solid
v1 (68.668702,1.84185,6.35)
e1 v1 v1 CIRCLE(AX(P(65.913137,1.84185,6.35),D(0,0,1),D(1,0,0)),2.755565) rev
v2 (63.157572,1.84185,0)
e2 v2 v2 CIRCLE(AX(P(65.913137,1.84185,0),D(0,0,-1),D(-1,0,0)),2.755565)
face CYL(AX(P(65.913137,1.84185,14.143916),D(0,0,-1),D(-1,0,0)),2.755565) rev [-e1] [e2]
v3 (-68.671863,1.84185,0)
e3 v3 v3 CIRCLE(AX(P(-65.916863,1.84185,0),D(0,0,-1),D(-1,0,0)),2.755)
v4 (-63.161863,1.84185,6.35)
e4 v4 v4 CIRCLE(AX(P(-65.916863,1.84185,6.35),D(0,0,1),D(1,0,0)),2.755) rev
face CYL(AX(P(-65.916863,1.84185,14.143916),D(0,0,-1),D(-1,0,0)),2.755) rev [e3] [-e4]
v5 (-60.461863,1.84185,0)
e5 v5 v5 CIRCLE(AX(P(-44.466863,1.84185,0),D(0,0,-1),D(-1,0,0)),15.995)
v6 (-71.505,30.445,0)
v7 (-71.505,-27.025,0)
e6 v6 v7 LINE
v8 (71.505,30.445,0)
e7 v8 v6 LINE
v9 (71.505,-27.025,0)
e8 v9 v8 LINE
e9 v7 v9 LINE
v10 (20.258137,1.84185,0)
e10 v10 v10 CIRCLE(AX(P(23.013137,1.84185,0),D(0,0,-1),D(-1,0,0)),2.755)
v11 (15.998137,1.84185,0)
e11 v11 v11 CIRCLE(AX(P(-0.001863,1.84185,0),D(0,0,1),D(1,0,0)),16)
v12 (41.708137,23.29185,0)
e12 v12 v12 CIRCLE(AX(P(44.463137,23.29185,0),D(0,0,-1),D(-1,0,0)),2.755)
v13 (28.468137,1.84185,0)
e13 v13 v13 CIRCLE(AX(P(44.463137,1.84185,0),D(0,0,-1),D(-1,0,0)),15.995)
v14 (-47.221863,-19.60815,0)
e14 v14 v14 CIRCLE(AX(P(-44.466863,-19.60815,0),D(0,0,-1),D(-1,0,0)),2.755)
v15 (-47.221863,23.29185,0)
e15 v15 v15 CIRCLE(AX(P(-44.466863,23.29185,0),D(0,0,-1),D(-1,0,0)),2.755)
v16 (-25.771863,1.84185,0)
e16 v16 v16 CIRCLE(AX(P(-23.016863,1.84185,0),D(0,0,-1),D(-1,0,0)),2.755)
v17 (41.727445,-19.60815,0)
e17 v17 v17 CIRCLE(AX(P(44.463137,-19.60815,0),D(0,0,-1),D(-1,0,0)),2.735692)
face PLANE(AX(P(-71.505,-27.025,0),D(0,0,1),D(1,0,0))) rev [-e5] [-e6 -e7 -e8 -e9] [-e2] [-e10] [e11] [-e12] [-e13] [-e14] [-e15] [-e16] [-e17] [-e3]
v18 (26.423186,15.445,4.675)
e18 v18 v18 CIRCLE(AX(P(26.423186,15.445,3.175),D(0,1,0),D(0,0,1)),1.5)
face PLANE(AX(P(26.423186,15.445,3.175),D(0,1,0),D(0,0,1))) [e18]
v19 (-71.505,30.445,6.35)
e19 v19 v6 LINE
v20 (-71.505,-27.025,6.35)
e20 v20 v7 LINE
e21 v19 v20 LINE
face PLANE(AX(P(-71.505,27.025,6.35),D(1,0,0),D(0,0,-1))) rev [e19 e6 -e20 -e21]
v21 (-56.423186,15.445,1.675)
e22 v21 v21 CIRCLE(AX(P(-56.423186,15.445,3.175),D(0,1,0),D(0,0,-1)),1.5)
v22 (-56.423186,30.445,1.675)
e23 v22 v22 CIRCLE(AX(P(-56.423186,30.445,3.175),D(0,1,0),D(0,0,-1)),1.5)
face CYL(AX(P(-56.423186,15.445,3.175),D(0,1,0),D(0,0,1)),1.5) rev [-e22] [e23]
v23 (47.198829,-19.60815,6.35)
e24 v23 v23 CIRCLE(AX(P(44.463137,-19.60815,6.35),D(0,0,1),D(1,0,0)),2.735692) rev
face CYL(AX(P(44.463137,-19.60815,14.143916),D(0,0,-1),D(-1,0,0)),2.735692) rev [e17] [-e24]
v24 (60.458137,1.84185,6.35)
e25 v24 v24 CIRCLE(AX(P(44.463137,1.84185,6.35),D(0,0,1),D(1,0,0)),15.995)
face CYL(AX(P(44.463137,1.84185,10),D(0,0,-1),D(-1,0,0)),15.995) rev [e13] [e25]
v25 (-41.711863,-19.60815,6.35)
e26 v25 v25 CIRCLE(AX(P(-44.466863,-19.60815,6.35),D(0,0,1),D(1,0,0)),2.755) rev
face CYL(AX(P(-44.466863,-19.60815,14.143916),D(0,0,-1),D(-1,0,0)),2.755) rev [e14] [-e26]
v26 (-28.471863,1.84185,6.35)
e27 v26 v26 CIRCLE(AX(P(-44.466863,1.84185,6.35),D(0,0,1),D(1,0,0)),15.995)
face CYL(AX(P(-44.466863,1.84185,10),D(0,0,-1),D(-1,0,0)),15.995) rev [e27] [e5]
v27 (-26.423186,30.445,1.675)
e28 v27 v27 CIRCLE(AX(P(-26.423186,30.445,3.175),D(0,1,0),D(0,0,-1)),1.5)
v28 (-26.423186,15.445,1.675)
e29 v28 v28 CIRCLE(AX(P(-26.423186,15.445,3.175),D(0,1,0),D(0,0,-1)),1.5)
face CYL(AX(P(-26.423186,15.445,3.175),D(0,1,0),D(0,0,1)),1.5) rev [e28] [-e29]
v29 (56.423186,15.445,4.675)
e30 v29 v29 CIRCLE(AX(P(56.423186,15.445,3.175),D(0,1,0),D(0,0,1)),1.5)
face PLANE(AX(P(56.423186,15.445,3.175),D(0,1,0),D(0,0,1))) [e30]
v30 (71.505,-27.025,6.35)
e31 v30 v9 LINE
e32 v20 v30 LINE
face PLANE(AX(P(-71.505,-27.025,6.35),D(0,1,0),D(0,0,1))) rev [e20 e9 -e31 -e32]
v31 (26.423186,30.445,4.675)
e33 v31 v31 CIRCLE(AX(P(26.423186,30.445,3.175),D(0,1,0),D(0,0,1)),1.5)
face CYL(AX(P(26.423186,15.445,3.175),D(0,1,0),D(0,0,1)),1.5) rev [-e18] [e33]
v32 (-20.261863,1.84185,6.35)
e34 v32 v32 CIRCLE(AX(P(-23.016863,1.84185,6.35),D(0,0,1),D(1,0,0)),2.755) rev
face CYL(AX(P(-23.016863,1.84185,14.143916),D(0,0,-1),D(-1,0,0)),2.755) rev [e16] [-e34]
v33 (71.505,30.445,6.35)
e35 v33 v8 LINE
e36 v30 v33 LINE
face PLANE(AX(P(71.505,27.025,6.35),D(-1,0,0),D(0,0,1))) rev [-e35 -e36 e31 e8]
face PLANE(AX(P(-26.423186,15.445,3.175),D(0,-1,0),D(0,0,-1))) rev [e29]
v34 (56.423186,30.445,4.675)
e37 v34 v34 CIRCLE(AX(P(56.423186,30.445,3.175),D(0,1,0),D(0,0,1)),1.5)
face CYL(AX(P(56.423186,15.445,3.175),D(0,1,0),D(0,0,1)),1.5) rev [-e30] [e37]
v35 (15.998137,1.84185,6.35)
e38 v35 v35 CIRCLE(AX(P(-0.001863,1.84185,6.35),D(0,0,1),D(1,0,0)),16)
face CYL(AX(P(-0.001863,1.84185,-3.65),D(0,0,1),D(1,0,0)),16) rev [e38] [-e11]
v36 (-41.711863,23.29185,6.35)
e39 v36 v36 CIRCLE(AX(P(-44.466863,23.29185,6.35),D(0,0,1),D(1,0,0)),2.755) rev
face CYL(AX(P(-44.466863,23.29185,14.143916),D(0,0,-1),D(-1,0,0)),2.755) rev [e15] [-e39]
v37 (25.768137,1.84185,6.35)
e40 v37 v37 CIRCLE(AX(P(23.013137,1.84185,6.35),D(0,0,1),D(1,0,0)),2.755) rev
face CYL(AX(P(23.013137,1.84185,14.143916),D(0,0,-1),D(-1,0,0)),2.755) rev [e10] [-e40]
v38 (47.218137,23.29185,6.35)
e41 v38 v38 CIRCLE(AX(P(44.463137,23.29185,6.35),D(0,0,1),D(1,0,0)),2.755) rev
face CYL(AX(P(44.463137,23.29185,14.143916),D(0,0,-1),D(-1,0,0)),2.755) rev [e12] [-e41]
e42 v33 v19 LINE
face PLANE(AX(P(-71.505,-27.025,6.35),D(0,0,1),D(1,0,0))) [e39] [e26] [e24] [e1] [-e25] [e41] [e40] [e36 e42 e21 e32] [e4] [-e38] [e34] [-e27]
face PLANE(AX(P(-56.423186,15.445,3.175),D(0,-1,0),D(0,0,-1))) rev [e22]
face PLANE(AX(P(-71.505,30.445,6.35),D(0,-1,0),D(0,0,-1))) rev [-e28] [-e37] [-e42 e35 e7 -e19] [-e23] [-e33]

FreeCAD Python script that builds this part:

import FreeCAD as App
import Part
import Sketcher
from FreeCAD import Vector


def add_polygon(sketch, points):
    """Adds a closed chain of lines whose ends are joined by coincident constraints."""
    first, n = sketch.GeometryCount, len(points)
    for a, b in zip(points, points[1:] + points[:1]):
        sketch.addGeometry(Part.LineSegment(App.Vector(*a, 0), App.Vector(*b, 0)), False)
    for i in range(n):
        sketch.addConstraint(Sketcher.Constraint("Coincident", first + i, 2, first + (i + 1) % n, 1))

doc = App.newDocument("Part")
body = doc.addObject("PartDesign::Body", "Body")

# Sketch on XY plane
sketch1 = body.newObject("Sketcher::SketchObject", "Sketch")
sketch1.AttachmentSupport = (doc.getObject("XY_Plane"), [""])
sketch1.MapMode = "FlatFace"
add_polygon(sketch1, [(-71.505, 27.025), (-71.505, -27.025), (71.505, -27.025), (71.505, 27.025)])  # lines 0-3
sketch1.addConstraint(Sketcher.Constraint("Vertical", 0))
sketch1.addConstraint(Sketcher.Constraint("Horizontal", 1))
sketch1.addConstraint(Sketcher.Constraint("Vertical", 2))
sketch1.addConstraint(Sketcher.Constraint("Horizontal", 3))
sketch1.addConstraint(Sketcher.Constraint("Symmetric", 0, 2, 2, 2, -1, 1))
sketch1.addConstraint(Sketcher.Constraint("DistanceX", 1, 1, 1, 2, 143.01))
sketch1.addConstraint(Sketcher.Constraint("DistanceY", 0, 2, 0, 1, 54.05))
pad1 = body.newObject("PartDesign::Pad", "Pad")
pad1.Profile = sketch1
pad1.Length = 6.35

# Sketch on XY plane
sketch2 = body.newObject("Sketcher::SketchObject", "Sketch001")
sketch2.AttachmentSupport = (doc.getObject("XY_Plane"), [""])
sketch2.MapMode = "FlatFace"
sketch2.addGeometry(Part.Circle(Vector(44.463137, 23.29185, 0), Vector(0, 0, 1), 2.755), False)
sketch2.addGeometry(Part.Circle(Vector(65.913137, 1.84185, 0), Vector(0, 0, 1), 2.755565), False)
sketch2.addGeometry(Part.Circle(Vector(44.463137, -19.60815, 0), Vector(0, 0, 1), 2.735692), False)
sketch2.addGeometry(Part.Circle(Vector(23.013137, 1.84185, 0), Vector(0, 0, 1), 2.755), False)
sketch2.addGeometry(Part.Circle(Vector(-23.016863, 1.84185, 0), Vector(0, 0, 1), 2.755), False)
sketch2.addGeometry(Part.Circle(Vector(-44.466863, -19.60815, 0), Vector(0, 0, 1), 2.755), False)
sketch2.addGeometry(Part.Circle(Vector(-65.916863, 1.84185, 0), Vector(0, 0, 1), 2.755), False)
sketch2.addGeometry(Part.Circle(Vector(-44.466863, 23.29185, 0), Vector(0, 0, 1), 2.755), False)
sketch2.addConstraint(Sketcher.Constraint("Equal", 0, 3))
sketch2.addConstraint(Sketcher.Constraint("Equal", 3, 4))
sketch2.addConstraint(Sketcher.Constraint("Equal", 4, 5))
sketch2.addConstraint(Sketcher.Constraint("Equal", 5, 6))
sketch2.addConstraint(Sketcher.Constraint("Equal", 6, 7))
sketch2.addConstraint(Sketcher.Constraint("Horizontal", 1, 3, 3, 3))
sketch2.addConstraint(Sketcher.Constraint("Horizontal", 3, 3, 4, 3))
sketch2.addConstraint(Sketcher.Constraint("Horizontal", 2, 3, 5, 3))
sketch2.addConstraint(Sketcher.Constraint("Horizontal", 4, 3, 6, 3))
sketch2.addConstraint(Sketcher.Constraint("Horizontal", 0, 3, 7, 3))
sketch2.addConstraint(Sketcher.Constraint("Vertical", 0, 3, 2, 3))
sketch2.addConstraint(Sketcher.Constraint("Vertical", 5, 3, 7, 3))
sketch2.addConstraint(Sketcher.Constraint("Diameter", 0, 5.51))
sketch2.addConstraint(Sketcher.Constraint("DistanceY", 2, 3, 0, 3, 42.9))
sketch2.addConstraint(Sketcher.Constraint("DistanceX", 3, 3, 1, 3, 42.9))
sketch2.addConstraint(Sketcher.Constraint("DistanceX", 6, 3, 4, 3, 42.9))
sketch2.addConstraint(Sketcher.Constraint("Diameter", 1, 5.511131))
sketch2.addConstraint(Sketcher.Constraint("DistanceX", 0, 3, 1, 3, 21.45))
sketch2.addConstraint(Sketcher.Constraint("DistanceY", 1, 3, 0, 3, 21.45))
sketch2.addConstraint(Sketcher.Constraint("DistanceX", 4, 3, 3, 3, 46.03))
sketch2.addConstraint(Sketcher.Constraint("DistanceX", 5, 3, 4, 3, 21.45))
sketch2.addConstraint(Sketcher.Constraint("Diameter", 2, 5.471383))
sketch2.addConstraint(Sketcher.Constraint("DistanceY", -1, 1, 0, 3, 23.29185))
sketch2.addConstraint(Sketcher.Constraint("DistanceX", -1, 1, 0, 3, 44.463137))
pocket1 = body.newObject("PartDesign::Pocket", "Pocket")
pocket1.Profile = sketch2
pocket1.Length = 6.35
pocket1.Reversed = True

# Sketch on XY plane
sketch3 = body.newObject("Sketcher::SketchObject", "Sketch002")
sketch3.AttachmentSupport = (doc.getObject("XY_Plane"), [""])
sketch3.MapMode = "FlatFace"
sketch3.addGeometry(Part.Circle(Vector(44.463137, 1.84185, 0), Vector(0, 0, 1), 15.995), False)
sketch3.addGeometry(Part.Circle(Vector(-0.001863, 1.84185, 0), Vector(0, 0, 1), 10), False)
sketch3.addGeometry(Part.Circle(Vector(-44.466863, 1.84185, 0), Vector(0, 0, 1), 15.995), False)
sketch3.addConstraint(Sketcher.Constraint("Equal", 0, 2))
sketch3.addConstraint(Sketcher.Constraint("Horizontal", 0, 3, 1, 3))
sketch3.addConstraint(Sketcher.Constraint("Horizontal", 1, 3, 2, 3))
sketch3.addConstraint(Sketcher.Constraint("Diameter", 1, 20.0))
sketch3.addConstraint(Sketcher.Constraint("Diameter", 0, 31.99))
sketch3.addConstraint(Sketcher.Constraint("DistanceX", 2, 3, 0, 3, 88.93))
sketch3.addConstraint(Sketcher.Constraint("DistanceX", 1, 3, 0, 3, 44.465))
sketch3.addConstraint(Sketcher.Constraint("DistanceY", -1, 1, 0, 3, 1.84185))
sketch3.addConstraint(Sketcher.Constraint("DistanceX", -1, 1, 0, 3, 44.463137))
pocket2 = body.newObject("PartDesign::Pocket", "Pocket001")
pocket2.Profile = sketch3
pocket2.Length = 10
pocket2.Reversed = True

# Sketch on XY plane
sketch4 = body.newObject("Sketcher::SketchObject", "Sketch003")
sketch4.AttachmentSupport = (doc.getObject("XY_Plane"), [""])
sketch4.MapMode = "FlatFace"
add_polygon(sketch4, [(-71.505, 30.445), (-71.505, 27.025), (71.505, 27.025), (71.505, 30.445)])  # lines 0-3
sketch4.addConstraint(Sketcher.Constraint("Vertical", 0))
sketch4.addConstraint(Sketcher.Constraint("Horizontal", 1))
sketch4.addConstraint(Sketcher.Constraint("Vertical", 2))
sketch4.addConstraint(Sketcher.Constraint("Horizontal", 3))
sketch4.addConstraint(Sketcher.Constraint("DistanceX", 1, 1, 1, 2, 143.01))
sketch4.addConstraint(Sketcher.Constraint("DistanceY", 0, 2, 0, 1, 3.42))
sketch4.addConstraint(Sketcher.Constraint("DistanceX", 0, 2, -1, 1, 71.505))
sketch4.addConstraint(Sketcher.Constraint("DistanceY", -1, 1, 0, 2, 27.025))
pad2 = body.newObject("PartDesign::Pad", "Pad001")
pad2.Profile = sketch4
pad2.Length = 6.35

# Sketch on XY plane
sketch5 = body.newObject("Sketcher::SketchObject", "Sketch004")
sketch5.AttachmentSupport = (doc.getObject("XY_Plane"), [""])
sketch5.MapMode = "FlatFace"
sketch5.AttachmentOffset = App.Placement(Vector(0, 0, 6.35), App.Rotation())
sketch5.addGeometry(Part.Circle(Vector(-0.001863, 1.84185, 0), Vector(0, 0, 1), 16), False)
sketch5.addConstraint(Sketcher.Constraint("Diameter", 0, 32.0))
sketch5.addConstraint(Sketcher.Constraint("DistanceY", -1, 1, 0, 3, 1.84185))
sketch5.addConstraint(Sketcher.Constraint("DistanceX", 0, 3, -1, 1, 0.001863))
pocket3 = body.newObject("PartDesign::Pocket", "Pocket002")
pocket3.Profile = sketch5
pocket3.Length = 10

# Sketch on XZ plane
sketch6 = body.newObject("Sketcher::SketchObject", "Sketch005")
sketch6.AttachmentSupport = (doc.getObject("XZ_Plane"), [""])
sketch6.MapMode = "FlatFace"
sketch6.AttachmentOffset = App.Placement(Vector(0, 0, -30.445), App.Rotation())
sketch6.addGeometry(Part.Circle(Vector(56.423186, 3.175, 0), Vector(0, 0, 1), 1.5), False)
sketch6.addGeometry(Part.Circle(Vector(26.423186, 3.175, 0), Vector(0, 0, 1), 1.5), False)
sketch6.addGeometry(Part.Circle(Vector(-26.423186, 3.175, 0), Vector(0, 0, 1), 1.5), False)
sketch6.addGeometry(Part.Circle(Vector(-56.423186, 3.175, 0), Vector(0, 0, 1), 1.5), False)
sketch6.addConstraint(Sketcher.Constraint("Equal", 0, 1))
sketch6.addConstraint(Sketcher.Constraint("Equal", 1, 2))
sketch6.addConstraint(Sketcher.Constraint("Equal", 2, 3))
sketch6.addConstraint(Sketcher.Constraint("Symmetric", 1, 3, 2, 3, -2))
sketch6.addConstraint(Sketcher.Constraint("Symmetric", 0, 3, 3, 3, -2))
sketch6.addConstraint(Sketcher.Constraint("Horizontal", 0, 3, 1, 3))
sketch6.addConstraint(Sketcher.Constraint("Diameter", 0, 3.0))
sketch6.addConstraint(Sketcher.Constraint("DistanceX", 1, 3, 0, 3, 30.0))
sketch6.addConstraint(Sketcher.Constraint("DistanceY", -1, 1, 0, 3, 3.175))
sketch6.addConstraint(Sketcher.Constraint("DistanceX", -1, 1, 0, 3, 56.423186))
pocket4 = body.newObject("PartDesign::Pocket", "Pocket003")
pocket4.Profile = sketch6
pocket4.Length = 15
pocket4.Reversed = True

doc.recompute()
